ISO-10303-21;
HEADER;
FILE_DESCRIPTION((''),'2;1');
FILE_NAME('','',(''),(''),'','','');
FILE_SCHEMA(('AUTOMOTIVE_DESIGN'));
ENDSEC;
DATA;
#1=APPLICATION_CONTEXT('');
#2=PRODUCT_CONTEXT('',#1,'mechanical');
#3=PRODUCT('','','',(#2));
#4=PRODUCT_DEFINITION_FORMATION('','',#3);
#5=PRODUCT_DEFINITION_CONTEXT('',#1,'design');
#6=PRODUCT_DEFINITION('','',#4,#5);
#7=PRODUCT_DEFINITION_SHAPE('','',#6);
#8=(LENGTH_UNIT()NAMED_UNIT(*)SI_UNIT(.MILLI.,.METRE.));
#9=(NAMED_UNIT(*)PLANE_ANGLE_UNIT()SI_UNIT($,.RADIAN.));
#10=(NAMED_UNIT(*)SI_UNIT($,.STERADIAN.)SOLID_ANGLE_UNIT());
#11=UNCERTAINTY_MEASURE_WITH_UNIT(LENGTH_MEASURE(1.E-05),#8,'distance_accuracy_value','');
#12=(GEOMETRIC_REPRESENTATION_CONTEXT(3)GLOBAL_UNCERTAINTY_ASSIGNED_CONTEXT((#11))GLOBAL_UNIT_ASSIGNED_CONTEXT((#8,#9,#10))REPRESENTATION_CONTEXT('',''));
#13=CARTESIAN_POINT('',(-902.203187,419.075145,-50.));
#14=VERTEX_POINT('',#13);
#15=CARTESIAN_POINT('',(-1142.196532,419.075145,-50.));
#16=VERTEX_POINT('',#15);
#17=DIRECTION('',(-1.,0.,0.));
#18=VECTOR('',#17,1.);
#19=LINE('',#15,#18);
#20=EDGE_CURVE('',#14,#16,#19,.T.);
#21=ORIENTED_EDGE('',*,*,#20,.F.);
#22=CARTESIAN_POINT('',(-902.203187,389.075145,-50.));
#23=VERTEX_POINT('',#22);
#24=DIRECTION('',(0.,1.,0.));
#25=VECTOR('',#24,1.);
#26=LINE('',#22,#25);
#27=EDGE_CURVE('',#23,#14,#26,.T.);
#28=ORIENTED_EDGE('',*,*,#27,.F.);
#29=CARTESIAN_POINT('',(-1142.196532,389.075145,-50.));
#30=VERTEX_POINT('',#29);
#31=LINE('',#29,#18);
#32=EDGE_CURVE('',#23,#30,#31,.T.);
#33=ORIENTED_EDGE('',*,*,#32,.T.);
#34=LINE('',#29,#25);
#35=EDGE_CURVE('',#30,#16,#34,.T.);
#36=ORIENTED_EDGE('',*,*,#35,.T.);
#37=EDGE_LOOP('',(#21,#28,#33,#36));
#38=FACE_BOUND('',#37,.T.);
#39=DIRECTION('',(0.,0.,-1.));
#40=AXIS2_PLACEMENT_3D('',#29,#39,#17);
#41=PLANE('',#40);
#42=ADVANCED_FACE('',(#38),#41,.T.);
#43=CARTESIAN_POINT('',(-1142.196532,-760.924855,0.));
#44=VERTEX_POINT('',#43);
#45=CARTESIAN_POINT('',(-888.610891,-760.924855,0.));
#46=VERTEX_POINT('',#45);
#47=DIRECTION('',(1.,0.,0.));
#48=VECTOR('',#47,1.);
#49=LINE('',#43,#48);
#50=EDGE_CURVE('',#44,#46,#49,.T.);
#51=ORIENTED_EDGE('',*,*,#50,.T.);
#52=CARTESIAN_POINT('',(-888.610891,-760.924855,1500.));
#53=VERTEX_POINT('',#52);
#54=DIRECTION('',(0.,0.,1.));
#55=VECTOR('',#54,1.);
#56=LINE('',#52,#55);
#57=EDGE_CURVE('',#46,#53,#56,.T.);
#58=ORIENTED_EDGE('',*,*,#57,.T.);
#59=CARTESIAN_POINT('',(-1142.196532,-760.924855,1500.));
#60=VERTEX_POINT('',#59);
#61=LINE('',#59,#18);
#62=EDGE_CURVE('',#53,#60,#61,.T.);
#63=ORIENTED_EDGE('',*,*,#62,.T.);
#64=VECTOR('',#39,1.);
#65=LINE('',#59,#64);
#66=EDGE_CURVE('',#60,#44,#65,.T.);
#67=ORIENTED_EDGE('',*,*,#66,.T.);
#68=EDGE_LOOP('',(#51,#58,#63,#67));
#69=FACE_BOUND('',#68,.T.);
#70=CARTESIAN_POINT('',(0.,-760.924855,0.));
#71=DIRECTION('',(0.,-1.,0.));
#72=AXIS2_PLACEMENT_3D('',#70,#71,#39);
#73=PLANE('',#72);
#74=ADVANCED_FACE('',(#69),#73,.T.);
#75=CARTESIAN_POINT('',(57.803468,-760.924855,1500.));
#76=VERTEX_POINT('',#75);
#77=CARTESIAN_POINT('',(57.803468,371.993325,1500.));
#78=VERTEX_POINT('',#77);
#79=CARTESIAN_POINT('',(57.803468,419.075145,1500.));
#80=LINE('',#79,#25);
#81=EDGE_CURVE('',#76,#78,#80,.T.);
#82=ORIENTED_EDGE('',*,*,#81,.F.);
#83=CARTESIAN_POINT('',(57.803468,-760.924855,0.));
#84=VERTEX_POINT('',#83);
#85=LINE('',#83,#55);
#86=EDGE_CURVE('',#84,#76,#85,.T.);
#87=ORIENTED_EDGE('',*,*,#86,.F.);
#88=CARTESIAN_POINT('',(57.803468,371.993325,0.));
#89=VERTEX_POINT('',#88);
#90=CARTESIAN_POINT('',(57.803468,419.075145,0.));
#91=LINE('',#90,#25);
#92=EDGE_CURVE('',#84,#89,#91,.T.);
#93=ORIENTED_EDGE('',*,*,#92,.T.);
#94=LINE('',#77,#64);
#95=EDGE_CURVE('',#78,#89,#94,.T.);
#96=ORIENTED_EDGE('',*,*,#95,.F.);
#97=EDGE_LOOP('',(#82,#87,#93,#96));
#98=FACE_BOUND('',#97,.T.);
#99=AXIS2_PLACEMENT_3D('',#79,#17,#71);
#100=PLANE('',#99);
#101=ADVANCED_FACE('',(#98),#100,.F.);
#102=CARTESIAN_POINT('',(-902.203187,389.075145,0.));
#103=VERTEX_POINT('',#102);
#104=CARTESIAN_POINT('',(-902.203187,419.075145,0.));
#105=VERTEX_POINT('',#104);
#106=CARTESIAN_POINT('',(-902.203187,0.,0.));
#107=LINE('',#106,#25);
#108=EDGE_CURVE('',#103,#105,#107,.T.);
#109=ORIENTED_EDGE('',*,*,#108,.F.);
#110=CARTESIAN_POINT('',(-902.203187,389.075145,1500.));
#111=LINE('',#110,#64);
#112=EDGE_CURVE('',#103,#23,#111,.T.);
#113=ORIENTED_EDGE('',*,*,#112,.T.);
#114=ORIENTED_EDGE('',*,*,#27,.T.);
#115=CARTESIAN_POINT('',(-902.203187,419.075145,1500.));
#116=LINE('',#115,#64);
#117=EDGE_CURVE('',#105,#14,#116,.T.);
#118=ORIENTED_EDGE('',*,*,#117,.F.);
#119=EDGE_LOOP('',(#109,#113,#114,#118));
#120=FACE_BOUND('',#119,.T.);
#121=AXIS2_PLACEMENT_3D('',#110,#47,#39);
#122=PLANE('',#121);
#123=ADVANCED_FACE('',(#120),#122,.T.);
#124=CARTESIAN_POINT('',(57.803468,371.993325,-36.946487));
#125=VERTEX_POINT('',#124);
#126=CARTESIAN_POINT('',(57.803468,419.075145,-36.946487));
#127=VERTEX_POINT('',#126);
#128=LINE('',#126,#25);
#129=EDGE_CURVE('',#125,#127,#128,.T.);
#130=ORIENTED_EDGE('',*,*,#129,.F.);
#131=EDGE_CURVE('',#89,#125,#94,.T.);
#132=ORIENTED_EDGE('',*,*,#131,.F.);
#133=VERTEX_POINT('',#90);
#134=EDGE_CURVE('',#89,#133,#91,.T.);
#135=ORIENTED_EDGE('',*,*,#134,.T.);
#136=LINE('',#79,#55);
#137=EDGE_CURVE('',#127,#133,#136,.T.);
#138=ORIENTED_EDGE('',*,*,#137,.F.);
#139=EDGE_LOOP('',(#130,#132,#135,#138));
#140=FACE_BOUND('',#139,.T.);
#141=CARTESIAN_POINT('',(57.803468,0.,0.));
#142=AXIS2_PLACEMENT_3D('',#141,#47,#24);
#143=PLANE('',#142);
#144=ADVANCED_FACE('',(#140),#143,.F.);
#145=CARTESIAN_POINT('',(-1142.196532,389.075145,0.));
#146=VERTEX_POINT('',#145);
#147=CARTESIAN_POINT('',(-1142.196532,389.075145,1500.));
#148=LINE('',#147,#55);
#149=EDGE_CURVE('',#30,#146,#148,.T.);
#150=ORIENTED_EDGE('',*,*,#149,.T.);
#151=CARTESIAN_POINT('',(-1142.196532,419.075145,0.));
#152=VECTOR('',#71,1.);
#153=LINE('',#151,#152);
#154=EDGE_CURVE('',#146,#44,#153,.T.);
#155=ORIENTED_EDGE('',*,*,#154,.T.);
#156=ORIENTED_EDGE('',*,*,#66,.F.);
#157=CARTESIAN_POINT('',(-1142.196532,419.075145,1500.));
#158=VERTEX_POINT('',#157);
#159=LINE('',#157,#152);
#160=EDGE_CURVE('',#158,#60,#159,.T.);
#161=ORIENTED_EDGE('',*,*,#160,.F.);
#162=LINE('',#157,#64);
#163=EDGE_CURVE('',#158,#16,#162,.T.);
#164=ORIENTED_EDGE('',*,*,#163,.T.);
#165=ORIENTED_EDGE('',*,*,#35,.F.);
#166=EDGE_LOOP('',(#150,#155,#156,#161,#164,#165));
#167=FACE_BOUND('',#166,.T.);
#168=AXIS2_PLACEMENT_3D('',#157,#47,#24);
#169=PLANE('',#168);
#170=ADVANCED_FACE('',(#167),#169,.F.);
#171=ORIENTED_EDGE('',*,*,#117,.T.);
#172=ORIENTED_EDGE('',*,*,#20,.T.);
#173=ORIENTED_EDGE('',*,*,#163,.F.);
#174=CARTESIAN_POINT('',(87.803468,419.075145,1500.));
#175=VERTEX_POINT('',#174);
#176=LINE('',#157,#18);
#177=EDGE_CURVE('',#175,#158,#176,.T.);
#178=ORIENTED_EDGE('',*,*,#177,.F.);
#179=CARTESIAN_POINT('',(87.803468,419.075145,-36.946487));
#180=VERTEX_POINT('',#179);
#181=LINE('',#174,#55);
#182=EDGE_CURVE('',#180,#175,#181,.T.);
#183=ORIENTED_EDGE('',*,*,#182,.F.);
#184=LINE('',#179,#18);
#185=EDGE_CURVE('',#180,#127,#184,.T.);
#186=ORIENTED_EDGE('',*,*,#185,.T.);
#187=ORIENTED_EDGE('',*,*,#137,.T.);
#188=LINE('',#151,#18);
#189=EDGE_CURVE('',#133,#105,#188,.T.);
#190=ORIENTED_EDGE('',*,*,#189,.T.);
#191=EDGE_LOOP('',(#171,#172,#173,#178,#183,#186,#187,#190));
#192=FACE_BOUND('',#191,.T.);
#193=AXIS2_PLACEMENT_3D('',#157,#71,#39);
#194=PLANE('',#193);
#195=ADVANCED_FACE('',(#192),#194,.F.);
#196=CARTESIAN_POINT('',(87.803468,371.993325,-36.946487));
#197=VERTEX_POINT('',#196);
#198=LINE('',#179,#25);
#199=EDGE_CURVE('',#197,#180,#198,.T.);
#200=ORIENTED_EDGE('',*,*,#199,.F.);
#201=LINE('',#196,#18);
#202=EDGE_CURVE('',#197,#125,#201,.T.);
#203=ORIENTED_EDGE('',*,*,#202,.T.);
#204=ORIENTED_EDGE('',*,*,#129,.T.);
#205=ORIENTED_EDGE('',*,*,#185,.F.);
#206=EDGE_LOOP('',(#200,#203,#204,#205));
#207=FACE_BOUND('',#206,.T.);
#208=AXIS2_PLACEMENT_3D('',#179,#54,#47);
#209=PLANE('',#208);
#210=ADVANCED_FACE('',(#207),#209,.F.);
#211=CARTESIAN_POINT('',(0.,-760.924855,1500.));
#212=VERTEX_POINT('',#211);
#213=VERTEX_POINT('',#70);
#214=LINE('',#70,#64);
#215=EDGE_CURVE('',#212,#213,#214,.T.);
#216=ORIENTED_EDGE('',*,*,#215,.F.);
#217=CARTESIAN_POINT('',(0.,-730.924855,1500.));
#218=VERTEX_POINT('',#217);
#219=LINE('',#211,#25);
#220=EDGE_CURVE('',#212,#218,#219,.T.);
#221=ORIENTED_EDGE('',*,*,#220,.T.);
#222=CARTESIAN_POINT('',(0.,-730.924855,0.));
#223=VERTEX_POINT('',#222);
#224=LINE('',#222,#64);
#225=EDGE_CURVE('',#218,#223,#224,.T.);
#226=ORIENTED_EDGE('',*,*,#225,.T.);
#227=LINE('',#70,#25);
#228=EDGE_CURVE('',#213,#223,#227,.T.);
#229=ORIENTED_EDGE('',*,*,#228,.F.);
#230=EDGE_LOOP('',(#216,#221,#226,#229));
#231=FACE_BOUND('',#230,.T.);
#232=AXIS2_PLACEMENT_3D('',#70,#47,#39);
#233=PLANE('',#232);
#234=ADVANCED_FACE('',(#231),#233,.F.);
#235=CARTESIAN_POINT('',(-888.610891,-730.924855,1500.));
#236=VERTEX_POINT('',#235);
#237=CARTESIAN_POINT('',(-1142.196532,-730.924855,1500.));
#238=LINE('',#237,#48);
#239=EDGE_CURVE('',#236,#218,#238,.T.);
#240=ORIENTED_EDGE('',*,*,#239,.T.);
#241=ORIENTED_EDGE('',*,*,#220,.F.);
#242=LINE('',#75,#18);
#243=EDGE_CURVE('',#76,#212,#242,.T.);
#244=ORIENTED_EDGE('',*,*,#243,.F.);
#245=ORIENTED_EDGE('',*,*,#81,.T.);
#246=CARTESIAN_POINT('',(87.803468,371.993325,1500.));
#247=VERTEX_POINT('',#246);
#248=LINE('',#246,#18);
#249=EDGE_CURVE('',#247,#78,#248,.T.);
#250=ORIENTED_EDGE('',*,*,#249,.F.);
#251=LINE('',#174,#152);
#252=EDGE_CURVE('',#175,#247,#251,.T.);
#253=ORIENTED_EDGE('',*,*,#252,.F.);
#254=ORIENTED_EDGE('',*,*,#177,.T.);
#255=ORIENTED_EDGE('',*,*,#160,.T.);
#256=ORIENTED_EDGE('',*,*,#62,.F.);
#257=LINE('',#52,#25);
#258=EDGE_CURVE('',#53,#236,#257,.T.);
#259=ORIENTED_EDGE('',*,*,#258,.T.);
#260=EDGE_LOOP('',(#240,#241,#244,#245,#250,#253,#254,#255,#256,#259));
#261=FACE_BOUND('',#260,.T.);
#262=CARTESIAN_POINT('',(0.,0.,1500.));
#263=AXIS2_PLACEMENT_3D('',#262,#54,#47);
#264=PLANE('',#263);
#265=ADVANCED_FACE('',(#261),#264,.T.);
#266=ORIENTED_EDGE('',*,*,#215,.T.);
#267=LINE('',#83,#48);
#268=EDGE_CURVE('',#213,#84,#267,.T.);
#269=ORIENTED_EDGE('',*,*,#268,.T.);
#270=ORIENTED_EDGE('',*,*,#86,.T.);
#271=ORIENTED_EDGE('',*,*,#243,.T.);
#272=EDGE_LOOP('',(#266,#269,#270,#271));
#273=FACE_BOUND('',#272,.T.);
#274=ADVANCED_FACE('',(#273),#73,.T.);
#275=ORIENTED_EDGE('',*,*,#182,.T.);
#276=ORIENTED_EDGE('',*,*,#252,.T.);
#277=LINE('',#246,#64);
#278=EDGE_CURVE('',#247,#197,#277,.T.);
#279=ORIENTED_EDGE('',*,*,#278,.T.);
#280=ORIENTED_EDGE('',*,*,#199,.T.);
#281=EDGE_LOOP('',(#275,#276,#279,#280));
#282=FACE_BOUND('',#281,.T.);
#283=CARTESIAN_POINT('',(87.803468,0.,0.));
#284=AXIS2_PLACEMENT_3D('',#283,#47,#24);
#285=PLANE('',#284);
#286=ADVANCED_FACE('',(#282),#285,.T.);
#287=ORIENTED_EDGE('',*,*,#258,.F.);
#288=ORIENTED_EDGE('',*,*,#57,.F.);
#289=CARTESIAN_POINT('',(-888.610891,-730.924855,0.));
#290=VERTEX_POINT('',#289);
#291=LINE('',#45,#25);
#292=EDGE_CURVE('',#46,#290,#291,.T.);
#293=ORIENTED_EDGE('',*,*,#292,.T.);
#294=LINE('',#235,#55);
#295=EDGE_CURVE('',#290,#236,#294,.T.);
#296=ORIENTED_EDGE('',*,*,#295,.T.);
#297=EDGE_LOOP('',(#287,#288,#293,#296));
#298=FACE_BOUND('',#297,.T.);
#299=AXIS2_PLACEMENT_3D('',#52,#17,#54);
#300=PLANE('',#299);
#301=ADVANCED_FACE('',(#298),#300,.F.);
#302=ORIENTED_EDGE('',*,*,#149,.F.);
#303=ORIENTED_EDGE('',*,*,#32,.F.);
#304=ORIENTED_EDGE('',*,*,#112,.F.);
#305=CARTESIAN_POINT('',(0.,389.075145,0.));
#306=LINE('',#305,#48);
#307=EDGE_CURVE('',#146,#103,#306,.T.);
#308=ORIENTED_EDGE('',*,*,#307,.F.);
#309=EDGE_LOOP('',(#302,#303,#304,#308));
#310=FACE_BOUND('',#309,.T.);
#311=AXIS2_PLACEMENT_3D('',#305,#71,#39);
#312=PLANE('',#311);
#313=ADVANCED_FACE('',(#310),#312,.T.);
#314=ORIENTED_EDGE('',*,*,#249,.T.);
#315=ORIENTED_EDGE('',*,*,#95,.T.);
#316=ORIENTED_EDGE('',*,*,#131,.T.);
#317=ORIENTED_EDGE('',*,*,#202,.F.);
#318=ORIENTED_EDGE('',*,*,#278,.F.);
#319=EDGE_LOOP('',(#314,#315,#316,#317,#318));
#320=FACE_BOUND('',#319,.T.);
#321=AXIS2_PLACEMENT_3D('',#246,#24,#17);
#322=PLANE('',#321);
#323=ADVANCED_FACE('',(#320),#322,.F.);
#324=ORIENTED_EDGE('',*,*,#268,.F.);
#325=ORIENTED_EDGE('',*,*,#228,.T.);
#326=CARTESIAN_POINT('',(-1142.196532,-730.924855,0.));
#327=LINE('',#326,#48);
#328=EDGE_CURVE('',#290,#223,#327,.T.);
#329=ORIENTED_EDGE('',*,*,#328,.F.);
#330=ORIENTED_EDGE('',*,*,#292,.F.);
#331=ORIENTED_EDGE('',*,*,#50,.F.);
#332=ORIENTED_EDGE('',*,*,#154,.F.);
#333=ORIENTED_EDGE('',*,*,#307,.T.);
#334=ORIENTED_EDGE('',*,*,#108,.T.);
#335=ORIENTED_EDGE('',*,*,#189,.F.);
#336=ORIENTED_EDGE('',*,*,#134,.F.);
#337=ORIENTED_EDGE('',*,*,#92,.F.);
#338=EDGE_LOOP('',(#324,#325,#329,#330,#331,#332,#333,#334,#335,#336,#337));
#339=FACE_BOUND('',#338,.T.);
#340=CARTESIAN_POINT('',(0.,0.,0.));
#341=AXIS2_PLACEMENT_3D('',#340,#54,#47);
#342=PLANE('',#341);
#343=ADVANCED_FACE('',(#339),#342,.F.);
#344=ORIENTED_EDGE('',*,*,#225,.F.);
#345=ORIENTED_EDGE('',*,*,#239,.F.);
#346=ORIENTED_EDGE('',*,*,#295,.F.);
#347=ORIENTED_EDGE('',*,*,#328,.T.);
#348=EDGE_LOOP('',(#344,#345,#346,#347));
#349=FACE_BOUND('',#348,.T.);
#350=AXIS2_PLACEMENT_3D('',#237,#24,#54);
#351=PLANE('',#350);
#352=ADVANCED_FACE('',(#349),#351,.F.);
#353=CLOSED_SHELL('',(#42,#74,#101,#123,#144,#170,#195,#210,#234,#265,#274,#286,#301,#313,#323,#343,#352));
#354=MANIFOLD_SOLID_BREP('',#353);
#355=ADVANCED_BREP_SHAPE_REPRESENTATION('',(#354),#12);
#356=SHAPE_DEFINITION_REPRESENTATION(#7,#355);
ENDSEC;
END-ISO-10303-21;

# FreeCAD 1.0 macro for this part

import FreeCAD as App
import Part
import Sketcher
from FreeCAD import Vector
Q = App.Units.Quantity

doc = App.newDocument("Part")
body = doc.addObject("PartDesign::Body", "Body")

# Sketch on XY plane
sketch1 = body.newObject("Sketcher::SketchObject", "Sketch")
sketch1.AttachmentSupport = (doc.getObject("XY_Plane"), [""])
sketch1.MapMode = "FlatFace"
sketch1.addGeometry(Part.LineSegment(Vector(-1142.196532, 419.075145, 0), Vector(-1142.196532, -730.924855, 0)), False)
sketch1.addGeometry(Part.LineSegment(Vector(-1142.196532, -730.924855, 0), Vector(57.803468, -730.924855, 0)), False)
sketch1.addGeometry(Part.LineSegment(Vector(57.803468, -730.924855, 0), Vector(57.803468, 419.075145, 0)), False)
sketch1.addGeometry(Part.LineSegment(Vector(57.803468, 419.075145, 0), Vector(-1142.196532, 419.075145, 0)), False)
sketch1.addConstraint(Sketcher.Constraint("Coincident", 0, 2, 1, 1))
sketch1.addConstraint(Sketcher.Constraint("Coincident", 1, 2, 2, 1))
sketch1.addConstraint(Sketcher.Constraint("Coincident", 2, 2, 3, 1))
sketch1.addConstraint(Sketcher.Constraint("Coincident", 3, 2, 0, 1))
sketch1.addConstraint(Sketcher.Constraint("Vertical", 0))
sketch1.addConstraint(Sketcher.Constraint("Horizontal", 1))
sketch1.addConstraint(Sketcher.Constraint("Vertical", 2))
sketch1.addConstraint(Sketcher.Constraint("Horizontal", 3))
sketch1.addConstraint(Sketcher.Constraint("DistanceX", 1, 1, 1, 2, Q("1200 mm")))
sketch1.addConstraint(Sketcher.Constraint("DistanceY", 0, 2, 0, 1, Q("1150 mm")))
sketch1.addConstraint(Sketcher.Constraint("DistanceX", 0, 2, -1, 1, Q("1142.196532 mm")))
sketch1.addConstraint(Sketcher.Constraint("DistanceY", 0, 2, -1, 1, Q("730.924855 mm")))
pad1 = body.newObject("PartDesign::Pad", "Pad")
pad1.Profile = sketch1
pad1.Length = 1500

# Sketch on XZ plane
sketch2 = body.newObject("Sketcher::SketchObject", "Sketch001")
sketch2.AttachmentSupport = (doc.getObject("XZ_Plane"), [""])
sketch2.MapMode = "FlatFace"
sketch2.AttachmentOffset = App.Placement(Vector(0, 0, 730.924855), App.Rotation())
sketch2.addGeometry(Part.LineSegment(Vector(0, 1500, 0), Vector(0, 0, 0)), False)
sketch2.addGeometry(Part.LineSegment(Vector(0, 0, 0), Vector(57.803468, 0, 0)), False)
sketch2.addGeometry(Part.LineSegment(Vector(57.803468, 0, 0), Vector(57.803468, 1500, 0)), False)
sketch2.addGeometry(Part.LineSegment(Vector(57.803468, 1500, 0), Vector(0, 1500, 0)), False)
sketch2.addGeometry(Part.LineSegment(Vector(-1142.196532, 1500, 0), Vector(-1142.196532, 0, 0)), False)
sketch2.addGeometry(Part.LineSegment(Vector(-1142.196532, 0, 0), Vector(-888.610891, 0, 0)), False)
sketch2.addGeometry(Part.LineSegment(Vector(-888.610891, 0, 0), Vector(-888.610891, 1500, 0)), False)
sketch2.addGeometry(Part.LineSegment(Vector(-888.610891, 1500, 0), Vector(-1142.196532, 1500, 0)), False)
sketch2.addConstraint(Sketcher.Constraint("Coincident", 0, 2, 1, 1))
sketch2.addConstraint(Sketcher.Constraint("Coincident", 1, 2, 2, 1))
sketch2.addConstraint(Sketcher.Constraint("Coincident", 2, 2, 3, 1))
sketch2.addConstraint(Sketcher.Constraint("Coincident", 3, 2, 0, 1))
sketch2.addConstraint(Sketcher.Constraint("Coincident", 4, 2, 5, 1))
sketch2.addConstraint(Sketcher.Constraint("Coincident", 5, 2, 6, 1))
sketch2.addConstraint(Sketcher.Constraint("Coincident", 6, 2, 7, 1))
sketch2.addConstraint(Sketcher.Constraint("Coincident", 7, 2, 4, 1))
sketch2.addConstraint(Sketcher.Constraint("Vertical", 0))
sketch2.addConstraint(Sketcher.Constraint("Horizontal", 1))
sketch2.addConstraint(Sketcher.Constraint("Vertical", 2))
sketch2.addConstraint(Sketcher.Constraint("Horizontal", 3))
sketch2.addConstraint(Sketcher.Constraint("Vertical", 4))
sketch2.addConstraint(Sketcher.Constraint("Horizontal", 5))
sketch2.addConstraint(Sketcher.Constraint("Vertical", 6))
sketch2.addConstraint(Sketcher.Constraint("Horizontal", 7))
sketch2.addConstraint(Sketcher.Constraint("Coincident", 0, 2, -1, 1))
sketch2.addConstraint(Sketcher.Constraint("PointOnObject", 4, 2, -1))
sketch2.addConstraint(Sketcher.Constraint("Horizontal", 3, 2, 6, 2))
sketch2.addConstraint(Sketcher.Constraint("DistanceY", 0, 2, 0, 1, Q("1500 mm")))
sketch2.addConstraint(Sketcher.Constraint("DistanceX", 4, 2, 1, 2, Q("1200 mm")))
sketch2.addConstraint(Sketcher.Constraint("DistanceX", 1, 1, 1, 2, Q("57.803468 mm")))
sketch2.addConstraint(Sketcher.Constraint("DistanceX", 5, 1, 5, 2, Q("253.585641 mm")))
pad2 = body.newObject("PartDesign::Pad", "Pad001")
pad2.Profile = sketch2
pad2.Length = 30

# Sketch on YZ plane
sketch3 = body.newObject("Sketcher::SketchObject", "Sketch002")
sketch3.AttachmentSupport = (doc.getObject("YZ_Plane"), [""])
sketch3.MapMode = "FlatFace"
sketch3.AttachmentOffset = App.Placement(Vector(0, 0, 57.803468), App.Rotation())
sketch3.addGeometry(Part.LineSegment(Vector(419.075145, 1500, 0), Vector(371.993325, 1500, 0)), False)
sketch3.addGeometry(Part.LineSegment(Vector(371.993325, 1500, 0), Vector(371.993325, -36.946487, 0)), False)
sketch3.addGeometry(Part.LineSegment(Vector(371.993325, -36.946487, 0), Vector(419.075145, -36.946487, 0)), False)
sketch3.addGeometry(Part.LineSegment(Vector(419.075145, -36.946487, 0), Vector(419.075145, 1500, 0)), False)
sketch3.addConstraint(Sketcher.Constraint("Coincident", 0, 2, 1, 1))
sketch3.addConstraint(Sketcher.Constraint("Coincident", 1, 2, 2, 1))
sketch3.addConstraint(Sketcher.Constraint("Coincident", 2, 2, 3, 1))
sketch3.addConstraint(Sketcher.Constraint("Coincident", 3, 2, 0, 1))
sketch3.addConstraint(Sketcher.Constraint("Horizontal", 0))
sketch3.addConstraint(Sketcher.Constraint("Vertical", 1))
sketch3.addConstraint(Sketcher.Constraint("Horizontal", 2))
sketch3.addConstraint(Sketcher.Constraint("Vertical", 3))
sketch3.addConstraint(Sketcher.Constraint("DistanceY", -1, 1, 0, 2, Q("1500 mm")))
sketch3.addConstraint(Sketcher.Constraint("DistanceX", 0, 2, 0, 1, Q("47.081819 mm")))
sketch3.addConstraint(Sketcher.Constraint("DistanceY", 1, 2, 1, 1, Q("1536.946487 mm")))
sketch3.addConstraint(Sketcher.Constraint("DistanceX", -1, 1, 0, 2, Q("371.993325 mm")))
pad3 = body.newObject("PartDesign::Pad", "Pad002")
pad3.Profile = sketch3
pad3.Length = 30

# Sketch on XZ plane
sketch4 = body.newObject("Sketcher::SketchObject", "Sketch003")
sketch4.AttachmentSupport = (doc.getObject("XZ_Plane"), [""])
sketch4.MapMode = "FlatFace"
sketch4.AttachmentOffset = App.Placement(Vector(0, 0, -419.075145), App.Rotation())
sketch4.addGeometry(Part.LineSegment(Vector(-1142.196532, -50, 0), Vector(-1142.196532, 1500, 0)), False)
sketch4.addGeometry(Part.LineSegment(Vector(-1142.196532, 1500, 0), Vector(-902.203187, 1500, 0)), False)
sketch4.addGeometry(Part.LineSegment(Vector(-902.203187, 1500, 0), Vector(-902.203187, -50, 0)), False)
sketch4.addGeometry(Part.LineSegment(Vector(-902.203187, -50, 0), Vector(-1142.196532, -50, 0)), False)
sketch4.addConstraint(Sketcher.Constraint("Coincident", 0, 2, 1, 1))
sketch4.addConstraint(Sketcher.Constraint("Coincident", 1, 2, 2, 1))
sketch4.addConstraint(Sketcher.Constraint("Coincident", 2, 2, 3, 1))
sketch4.addConstraint(Sketcher.Constraint("Coincident", 3, 2, 0, 1))
sketch4.addConstraint(Sketcher.Constraint("Vertical", 0))
sketch4.addConstraint(Sketcher.Constraint("Horizontal", 1))
sketch4.addConstraint(Sketcher.Constraint("Vertical", 2))
sketch4.addConstraint(Sketcher.Constraint("Horizontal", 3))
sketch4.addConstraint(Sketcher.Constraint("DistanceY", 0, 1, 0, 2, Q("1550 mm")))
sketch4.addConstraint(Sketcher.Constraint("DistanceY", -1, 1, 0, 2, Q("1500 mm")))
sketch4.addConstraint(Sketcher.Constraint("DistanceX", 1, 1, 1, 2, Q("239.993344 mm")))
sketch4.addConstraint(Sketcher.Constraint("DistanceX", 0, 2, -1, 1, Q("1142.196532 mm")))
pad4 = body.newObject("PartDesign::Pad", "Pad003")
pad4.Profile = sketch4
pad4.Length = 30

doc.recompute()
